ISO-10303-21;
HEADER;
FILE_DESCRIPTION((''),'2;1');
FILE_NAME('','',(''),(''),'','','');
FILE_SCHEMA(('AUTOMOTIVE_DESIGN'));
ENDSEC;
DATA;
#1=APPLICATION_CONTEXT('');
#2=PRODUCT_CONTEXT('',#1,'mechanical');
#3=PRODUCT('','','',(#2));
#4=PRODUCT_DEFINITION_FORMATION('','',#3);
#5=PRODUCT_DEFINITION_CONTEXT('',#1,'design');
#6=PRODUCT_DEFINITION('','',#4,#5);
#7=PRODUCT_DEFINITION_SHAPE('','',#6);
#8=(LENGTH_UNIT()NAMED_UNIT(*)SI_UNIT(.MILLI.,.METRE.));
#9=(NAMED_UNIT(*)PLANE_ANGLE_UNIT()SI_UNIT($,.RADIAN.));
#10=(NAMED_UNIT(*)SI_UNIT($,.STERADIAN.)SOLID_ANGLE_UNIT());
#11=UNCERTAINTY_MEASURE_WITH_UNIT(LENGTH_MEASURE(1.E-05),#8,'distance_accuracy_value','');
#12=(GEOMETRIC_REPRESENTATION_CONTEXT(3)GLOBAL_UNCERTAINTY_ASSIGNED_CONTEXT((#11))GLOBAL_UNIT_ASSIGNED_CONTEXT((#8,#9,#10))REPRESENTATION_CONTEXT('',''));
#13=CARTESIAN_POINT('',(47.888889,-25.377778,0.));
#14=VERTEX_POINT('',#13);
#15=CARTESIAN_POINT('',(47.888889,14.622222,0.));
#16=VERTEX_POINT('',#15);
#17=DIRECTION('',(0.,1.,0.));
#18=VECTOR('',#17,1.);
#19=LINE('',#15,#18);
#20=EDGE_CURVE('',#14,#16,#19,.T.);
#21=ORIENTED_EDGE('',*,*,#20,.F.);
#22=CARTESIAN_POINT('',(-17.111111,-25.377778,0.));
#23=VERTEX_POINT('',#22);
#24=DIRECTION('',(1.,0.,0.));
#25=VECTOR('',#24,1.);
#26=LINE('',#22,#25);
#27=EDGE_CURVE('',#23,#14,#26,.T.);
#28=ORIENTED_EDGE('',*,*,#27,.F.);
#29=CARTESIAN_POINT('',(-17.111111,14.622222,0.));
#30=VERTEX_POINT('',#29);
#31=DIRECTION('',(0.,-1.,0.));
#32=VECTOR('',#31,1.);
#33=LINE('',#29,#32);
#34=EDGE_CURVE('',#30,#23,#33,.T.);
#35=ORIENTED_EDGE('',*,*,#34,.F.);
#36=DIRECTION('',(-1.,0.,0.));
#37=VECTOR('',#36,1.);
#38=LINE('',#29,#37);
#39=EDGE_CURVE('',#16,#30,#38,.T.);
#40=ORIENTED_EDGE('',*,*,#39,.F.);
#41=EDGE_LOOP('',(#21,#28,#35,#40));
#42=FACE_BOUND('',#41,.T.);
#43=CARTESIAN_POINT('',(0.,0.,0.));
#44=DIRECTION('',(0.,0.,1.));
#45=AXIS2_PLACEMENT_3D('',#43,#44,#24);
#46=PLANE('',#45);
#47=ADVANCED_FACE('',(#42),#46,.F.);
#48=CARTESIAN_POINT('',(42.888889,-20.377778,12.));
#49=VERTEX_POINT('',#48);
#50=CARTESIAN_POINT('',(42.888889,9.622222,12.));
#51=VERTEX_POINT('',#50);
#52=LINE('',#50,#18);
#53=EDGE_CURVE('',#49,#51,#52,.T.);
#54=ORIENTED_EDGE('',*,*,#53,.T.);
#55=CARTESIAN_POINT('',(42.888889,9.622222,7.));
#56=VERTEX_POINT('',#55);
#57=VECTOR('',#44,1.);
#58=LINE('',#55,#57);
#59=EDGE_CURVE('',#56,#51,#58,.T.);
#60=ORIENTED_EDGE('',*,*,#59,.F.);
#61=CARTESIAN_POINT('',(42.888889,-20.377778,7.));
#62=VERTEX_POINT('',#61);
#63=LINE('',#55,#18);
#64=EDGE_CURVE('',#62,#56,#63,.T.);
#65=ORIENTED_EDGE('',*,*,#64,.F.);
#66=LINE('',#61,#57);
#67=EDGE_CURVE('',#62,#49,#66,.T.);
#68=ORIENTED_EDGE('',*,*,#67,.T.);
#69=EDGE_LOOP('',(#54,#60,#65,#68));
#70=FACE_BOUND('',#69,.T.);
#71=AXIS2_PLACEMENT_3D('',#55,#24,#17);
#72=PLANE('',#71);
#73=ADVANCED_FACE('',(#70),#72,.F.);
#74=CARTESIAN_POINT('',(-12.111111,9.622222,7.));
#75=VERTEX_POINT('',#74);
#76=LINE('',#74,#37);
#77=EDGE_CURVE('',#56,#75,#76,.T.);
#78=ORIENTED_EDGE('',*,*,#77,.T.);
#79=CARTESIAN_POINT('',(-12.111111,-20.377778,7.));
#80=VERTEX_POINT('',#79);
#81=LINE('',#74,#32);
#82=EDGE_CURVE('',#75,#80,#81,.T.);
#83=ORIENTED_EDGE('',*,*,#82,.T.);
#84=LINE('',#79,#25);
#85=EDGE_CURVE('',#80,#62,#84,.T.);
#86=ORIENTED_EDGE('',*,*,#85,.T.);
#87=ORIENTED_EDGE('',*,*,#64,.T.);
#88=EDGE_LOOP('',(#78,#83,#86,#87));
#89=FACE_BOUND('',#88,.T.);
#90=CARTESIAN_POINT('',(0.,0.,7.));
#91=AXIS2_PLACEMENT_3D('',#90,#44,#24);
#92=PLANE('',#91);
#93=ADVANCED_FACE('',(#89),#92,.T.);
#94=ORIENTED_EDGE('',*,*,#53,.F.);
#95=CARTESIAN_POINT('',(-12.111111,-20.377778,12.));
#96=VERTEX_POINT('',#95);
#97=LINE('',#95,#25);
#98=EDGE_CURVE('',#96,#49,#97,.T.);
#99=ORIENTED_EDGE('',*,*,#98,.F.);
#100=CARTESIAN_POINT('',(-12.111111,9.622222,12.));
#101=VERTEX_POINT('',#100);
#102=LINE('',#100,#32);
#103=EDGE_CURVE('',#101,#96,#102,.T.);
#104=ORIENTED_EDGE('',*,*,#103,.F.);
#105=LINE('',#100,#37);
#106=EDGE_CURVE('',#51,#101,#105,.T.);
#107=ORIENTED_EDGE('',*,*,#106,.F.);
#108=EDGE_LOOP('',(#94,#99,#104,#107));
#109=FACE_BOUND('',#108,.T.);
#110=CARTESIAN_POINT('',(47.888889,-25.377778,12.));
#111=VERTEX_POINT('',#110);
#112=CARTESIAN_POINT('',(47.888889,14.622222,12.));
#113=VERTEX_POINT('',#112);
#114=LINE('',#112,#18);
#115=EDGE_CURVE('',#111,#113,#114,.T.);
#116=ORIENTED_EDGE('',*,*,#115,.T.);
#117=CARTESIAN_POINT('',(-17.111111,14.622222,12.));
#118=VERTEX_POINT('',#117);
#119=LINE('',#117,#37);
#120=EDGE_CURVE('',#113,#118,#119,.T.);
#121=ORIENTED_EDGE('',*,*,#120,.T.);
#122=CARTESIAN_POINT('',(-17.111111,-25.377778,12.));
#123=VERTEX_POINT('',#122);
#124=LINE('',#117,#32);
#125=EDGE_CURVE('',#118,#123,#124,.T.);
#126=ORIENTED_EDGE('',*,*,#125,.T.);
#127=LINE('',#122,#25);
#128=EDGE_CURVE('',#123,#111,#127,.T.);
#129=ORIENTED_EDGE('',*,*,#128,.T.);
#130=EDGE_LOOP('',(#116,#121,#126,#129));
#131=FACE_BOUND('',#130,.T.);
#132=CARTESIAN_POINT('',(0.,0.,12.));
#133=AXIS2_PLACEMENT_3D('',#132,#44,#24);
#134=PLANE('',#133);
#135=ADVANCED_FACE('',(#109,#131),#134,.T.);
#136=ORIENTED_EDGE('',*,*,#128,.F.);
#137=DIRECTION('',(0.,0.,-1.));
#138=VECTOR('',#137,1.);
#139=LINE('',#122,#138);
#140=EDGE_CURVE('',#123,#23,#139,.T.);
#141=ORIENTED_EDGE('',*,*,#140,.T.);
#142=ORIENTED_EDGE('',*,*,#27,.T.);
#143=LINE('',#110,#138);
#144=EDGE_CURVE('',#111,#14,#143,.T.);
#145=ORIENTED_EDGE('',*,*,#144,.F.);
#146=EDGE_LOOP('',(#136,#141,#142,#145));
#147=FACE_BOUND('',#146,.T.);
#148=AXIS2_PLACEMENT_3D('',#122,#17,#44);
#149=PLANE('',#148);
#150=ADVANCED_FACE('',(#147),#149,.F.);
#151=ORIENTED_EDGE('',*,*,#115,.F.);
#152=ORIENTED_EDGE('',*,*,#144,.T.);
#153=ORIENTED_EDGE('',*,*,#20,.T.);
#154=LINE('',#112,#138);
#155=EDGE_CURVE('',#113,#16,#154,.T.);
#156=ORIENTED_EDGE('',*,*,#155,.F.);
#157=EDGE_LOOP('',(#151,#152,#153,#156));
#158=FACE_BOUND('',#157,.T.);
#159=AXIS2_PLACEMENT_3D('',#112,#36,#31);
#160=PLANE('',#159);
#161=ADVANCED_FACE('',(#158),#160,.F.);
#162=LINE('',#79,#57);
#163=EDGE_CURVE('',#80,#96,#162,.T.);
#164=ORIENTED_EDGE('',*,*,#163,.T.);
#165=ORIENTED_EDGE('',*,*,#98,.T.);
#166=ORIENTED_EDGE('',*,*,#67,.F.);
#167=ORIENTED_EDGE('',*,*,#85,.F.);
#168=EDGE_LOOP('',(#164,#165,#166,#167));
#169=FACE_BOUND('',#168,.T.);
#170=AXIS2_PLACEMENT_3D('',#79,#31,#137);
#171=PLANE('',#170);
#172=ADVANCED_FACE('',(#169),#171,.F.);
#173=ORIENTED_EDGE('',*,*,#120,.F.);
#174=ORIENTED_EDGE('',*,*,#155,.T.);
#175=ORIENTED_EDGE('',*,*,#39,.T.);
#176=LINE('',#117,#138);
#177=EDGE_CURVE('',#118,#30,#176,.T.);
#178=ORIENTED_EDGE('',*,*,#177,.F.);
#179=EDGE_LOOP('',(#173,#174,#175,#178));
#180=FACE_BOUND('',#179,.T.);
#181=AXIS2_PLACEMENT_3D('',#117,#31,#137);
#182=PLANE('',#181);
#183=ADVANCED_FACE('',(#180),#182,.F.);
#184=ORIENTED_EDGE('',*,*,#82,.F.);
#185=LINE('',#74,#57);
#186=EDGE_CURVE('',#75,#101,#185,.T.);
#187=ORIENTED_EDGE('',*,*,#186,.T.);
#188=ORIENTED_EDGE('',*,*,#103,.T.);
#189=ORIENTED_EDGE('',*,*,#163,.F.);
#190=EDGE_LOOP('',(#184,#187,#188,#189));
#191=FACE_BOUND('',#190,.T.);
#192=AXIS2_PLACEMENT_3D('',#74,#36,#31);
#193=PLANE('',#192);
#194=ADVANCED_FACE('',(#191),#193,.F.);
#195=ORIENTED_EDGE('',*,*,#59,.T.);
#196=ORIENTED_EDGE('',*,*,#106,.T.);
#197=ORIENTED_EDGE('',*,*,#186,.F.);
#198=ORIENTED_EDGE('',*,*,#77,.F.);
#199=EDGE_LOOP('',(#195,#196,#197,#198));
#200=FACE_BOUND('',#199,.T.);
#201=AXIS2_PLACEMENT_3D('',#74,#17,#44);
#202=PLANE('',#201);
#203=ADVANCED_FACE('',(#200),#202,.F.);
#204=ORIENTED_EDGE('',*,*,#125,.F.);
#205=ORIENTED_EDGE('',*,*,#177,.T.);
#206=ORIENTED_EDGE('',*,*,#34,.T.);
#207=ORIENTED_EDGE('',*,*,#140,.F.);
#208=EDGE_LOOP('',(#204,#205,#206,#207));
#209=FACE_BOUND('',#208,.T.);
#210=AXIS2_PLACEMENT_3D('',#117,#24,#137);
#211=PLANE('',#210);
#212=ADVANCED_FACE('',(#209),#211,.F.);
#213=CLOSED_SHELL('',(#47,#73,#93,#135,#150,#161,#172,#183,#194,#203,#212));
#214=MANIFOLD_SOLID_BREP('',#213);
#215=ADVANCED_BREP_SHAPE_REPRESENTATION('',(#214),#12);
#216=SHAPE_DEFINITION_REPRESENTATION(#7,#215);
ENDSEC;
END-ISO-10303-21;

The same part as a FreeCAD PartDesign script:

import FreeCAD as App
import Part
import Sketcher
Q = App.Units.Quantity

doc = App.newDocument("Part")
body = doc.addObject("PartDesign::Body", "Body")

# Sketch on XY plane
sketch1 = body.newObject("Sketcher::SketchObject", "Sketch")
sketch1.AttachmentSupport = (doc.getObject("XY_Plane"), [""])
sketch1.MapMode = "FlatFace"
sketch1.addGeometry([
    Part.LineSegment(App.Vector(-17, 15, 0), App.Vector(-17, -25, 0)),
    Part.LineSegment(App.Vector(-17, -25, 0), App.Vector(48, -25, 0)),
    Part.LineSegment(App.Vector(48, -25, 0), App.Vector(48, 15, 0)),
    Part.LineSegment(App.Vector(48, 15, 0), App.Vector(-17, 15, 0)),
], False)
sketch1.addConstraint([
    Sketcher.Constraint("Coincident", 0, 2, 1, 1),
    Sketcher.Constraint("Coincident", 1, 2, 2, 1),
    Sketcher.Constraint("Coincident", 2, 2, 3, 1),
    Sketcher.Constraint("Coincident", 3, 2, 0, 1),
    Sketcher.Constraint("Vertical", 0),
    Sketcher.Constraint("Horizontal", 1),
    Sketcher.Constraint("Vertical", 2),
    Sketcher.Constraint("Horizontal", 3),
    Sketcher.Constraint("DistanceX", 1, 1, 1, 2, Q("65 mm")),
    Sketcher.Constraint("DistanceY", 0, 2, 0, 1, Q("40 mm")),
    Sketcher.Constraint("DistanceX", 0, 2, -1, 1, Q("17.111111 mm")),
    Sketcher.Constraint("DistanceY", 0, 2, -1, 1, Q("25.377778 mm")),
])
pad1 = body.newObject("PartDesign::Pad", "Pad")
pad1.Profile = sketch1
pad1.Length = 12

# Sketch on XY plane
sketch2 = body.newObject("Sketcher::SketchObject", "Sketch001")
sketch2.AttachmentSupport = (doc.getObject("XY_Plane"), [""])
sketch2.MapMode = "FlatFace"
sketch2.AttachmentOffset = App.Placement(App.Vector(0, 0, 12), App.Rotation())
sketch2.addGeometry([
    Part.LineSegment(App.Vector(-12, 10, 0), App.Vector(-12, -20, 0)),
    Part.LineSegment(App.Vector(-12, -20, 0), App.Vector(43, -20, 0)),
    Part.LineSegment(App.Vector(43, -20, 0), App.Vector(43, 10, 0)),
    Part.LineSegment(App.Vector(43, 10, 0), App.Vector(-12, 10, 0)),
], False)
sketch2.addConstraint([
    Sketcher.Constraint("Coincident", 0, 2, 1, 1),
    Sketcher.Constraint("Coincident", 1, 2, 2, 1),
    Sketcher.Constraint("Coincident", 2, 2, 3, 1),
    Sketcher.Constraint("Coincident", 3, 2, 0, 1),
    Sketcher.Constraint("Vertical", 0),
    Sketcher.Constraint("Horizontal", 1),
    Sketcher.Constraint("Vertical", 2),
    Sketcher.Constraint("Horizontal", 3),
    Sketcher.Constraint("DistanceX", 1, 1, 1, 2, Q("55 mm")),
    Sketcher.Constraint("DistanceY", 0, 2, 0, 1, Q("30 mm")),
    Sketcher.Constraint("DistanceX", 0, 2, -1, 1, Q("12.111111 mm")),
    Sketcher.Constraint("DistanceY", 0, 2, -1, 1, Q("20.377778 mm")),
])
pocket1 = body.newObject("PartDesign::Pocket", "Pocket")
pocket1.Profile = sketch2
pocket1.Length = 5

doc.recompute()
